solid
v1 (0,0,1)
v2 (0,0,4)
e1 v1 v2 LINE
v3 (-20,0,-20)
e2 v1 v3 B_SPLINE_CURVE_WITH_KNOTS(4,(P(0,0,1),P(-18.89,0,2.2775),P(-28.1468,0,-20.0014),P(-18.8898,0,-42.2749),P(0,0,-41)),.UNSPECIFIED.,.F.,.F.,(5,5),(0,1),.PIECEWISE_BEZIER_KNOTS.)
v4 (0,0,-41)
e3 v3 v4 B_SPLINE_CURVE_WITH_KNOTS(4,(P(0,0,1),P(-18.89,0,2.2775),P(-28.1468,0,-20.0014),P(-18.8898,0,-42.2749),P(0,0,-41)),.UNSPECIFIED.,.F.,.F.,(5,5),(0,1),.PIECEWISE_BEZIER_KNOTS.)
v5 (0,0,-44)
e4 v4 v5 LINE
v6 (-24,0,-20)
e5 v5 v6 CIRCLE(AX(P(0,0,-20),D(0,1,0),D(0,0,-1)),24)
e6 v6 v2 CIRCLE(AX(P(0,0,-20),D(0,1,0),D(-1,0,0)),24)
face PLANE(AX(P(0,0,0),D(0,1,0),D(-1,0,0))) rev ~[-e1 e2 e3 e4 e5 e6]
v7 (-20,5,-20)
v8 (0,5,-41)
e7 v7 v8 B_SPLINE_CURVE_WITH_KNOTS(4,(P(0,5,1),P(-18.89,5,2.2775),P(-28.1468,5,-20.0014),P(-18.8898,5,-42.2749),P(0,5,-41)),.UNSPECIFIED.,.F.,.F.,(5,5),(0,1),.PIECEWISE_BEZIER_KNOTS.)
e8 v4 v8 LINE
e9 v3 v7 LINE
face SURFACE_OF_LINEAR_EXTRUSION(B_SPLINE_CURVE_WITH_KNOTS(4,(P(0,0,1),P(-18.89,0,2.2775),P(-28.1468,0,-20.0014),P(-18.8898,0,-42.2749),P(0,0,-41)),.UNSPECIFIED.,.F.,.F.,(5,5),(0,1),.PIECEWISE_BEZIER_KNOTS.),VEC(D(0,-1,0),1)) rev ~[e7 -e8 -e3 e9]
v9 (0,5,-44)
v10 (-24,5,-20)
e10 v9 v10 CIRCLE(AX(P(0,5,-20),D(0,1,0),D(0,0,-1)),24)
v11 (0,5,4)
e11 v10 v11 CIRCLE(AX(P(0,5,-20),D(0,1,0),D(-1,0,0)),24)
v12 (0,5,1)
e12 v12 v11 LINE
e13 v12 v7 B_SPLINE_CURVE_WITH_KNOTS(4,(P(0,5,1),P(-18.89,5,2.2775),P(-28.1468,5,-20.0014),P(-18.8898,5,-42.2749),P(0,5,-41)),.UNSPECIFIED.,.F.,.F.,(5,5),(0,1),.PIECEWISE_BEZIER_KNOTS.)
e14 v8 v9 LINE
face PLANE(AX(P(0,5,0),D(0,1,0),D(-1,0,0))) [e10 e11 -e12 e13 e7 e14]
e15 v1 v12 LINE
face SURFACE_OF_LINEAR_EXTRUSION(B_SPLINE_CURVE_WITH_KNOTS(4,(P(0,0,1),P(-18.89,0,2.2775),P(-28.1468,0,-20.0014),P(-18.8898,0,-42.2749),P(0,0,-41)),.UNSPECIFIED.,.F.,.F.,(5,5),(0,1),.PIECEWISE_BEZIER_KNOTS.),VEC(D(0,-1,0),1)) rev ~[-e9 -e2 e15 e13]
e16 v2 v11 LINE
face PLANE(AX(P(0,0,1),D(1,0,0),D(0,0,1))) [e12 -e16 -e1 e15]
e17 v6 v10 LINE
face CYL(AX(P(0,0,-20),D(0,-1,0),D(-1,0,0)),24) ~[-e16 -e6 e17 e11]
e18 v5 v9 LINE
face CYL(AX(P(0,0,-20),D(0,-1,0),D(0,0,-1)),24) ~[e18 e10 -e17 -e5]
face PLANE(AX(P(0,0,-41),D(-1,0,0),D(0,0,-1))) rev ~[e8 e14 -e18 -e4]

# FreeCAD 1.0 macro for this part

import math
import FreeCAD as App
import Part
import Sketcher

V = App.Vector

doc = App.newDocument("Part")
params = doc.addObject("Spreadsheet::Sheet", "Params")
for row, (alias, value) in enumerate([
    ("sketch1_height", "3 mm"),
    ("pad1_length", "5 mm"),
], start=1):
    params.set(f"A{row}", alias)
    params.set(f"B{row}", "=" + value)
    params.setAlias(f"B{row}", alias)

body = doc.addObject("PartDesign::Body", "Body")

# Sketch on XZ plane
sketch1 = body.newObject("Sketcher::SketchObject", "Sketch")
sketch1.AttachmentSupport = (doc.getObject("XZ_Plane"), [""])
sketch1.MapMode = "FlatFace"
sketch1.addGeometry([
    Part.BSplineCurve([V(0, 1, 0), V(-9.445036, 1.638752, 0), V(-16.481754, -3.61164, 0), V(-20.000065, -11.805919, 0), V(-20, -20, 0)], [5, 5], [0, 0.500001907], False, 4, [1, 1, 1, 1, 1], False),  # 0
    Part.BSplineCurve([V(-20, -20, 0), V(-19.999935, -28.194019, 0), V(-16.481546, -36.38784, 0), V(-9.444864, -41.637448, 0), V(0, -41, 0)], [5, 5], [0.500001907, 1], False, 4, [1, 1, 1, 1, 1], False),  # 1
    Part.LineSegment(V(0, -41, 0), V(0, -44, 0)),  # 2
    Part.ArcOfCircle(Part.Circle(V(0, -20, 0), V(0, 0, 1), 24), math.radians(90), math.radians(270)),  # 3
    Part.LineSegment(V(0, 4, 0), V(0, 1, 0)),  # 4
], False)
sketch1.addConstraint([
    Sketcher.Constraint("Block", 0),
    Sketcher.Constraint("Block", 1),
    Sketcher.Constraint("Coincident", 1, 2, 2, 1),
    Sketcher.Constraint("Coincident", 2, 2, 3, 2),
    Sketcher.Constraint("Coincident", 3, 1, 4, 1),
    Sketcher.Constraint("Coincident", 4, 2, 0, 1),
    Sketcher.Constraint("Vertical", 2),
    Sketcher.Constraint("Vertical", 4),
    Sketcher.Constraint("PointOnObject", 3, 3, -2),
    Sketcher.Constraint("Equal", 2, 4),
    Sketcher.Constraint("DistanceY", 2, 2, 2, 1, 3.0),
])
sketch1.setExpression("Constraints[10]", "Params.sketch1_height")
pad1 = body.newObject("PartDesign::Pad", "Pad")
pad1.Profile = sketch1
pad1.setExpression("Length", "Params.pad1_length")
pad1.Reversed = True

doc.recompute()
